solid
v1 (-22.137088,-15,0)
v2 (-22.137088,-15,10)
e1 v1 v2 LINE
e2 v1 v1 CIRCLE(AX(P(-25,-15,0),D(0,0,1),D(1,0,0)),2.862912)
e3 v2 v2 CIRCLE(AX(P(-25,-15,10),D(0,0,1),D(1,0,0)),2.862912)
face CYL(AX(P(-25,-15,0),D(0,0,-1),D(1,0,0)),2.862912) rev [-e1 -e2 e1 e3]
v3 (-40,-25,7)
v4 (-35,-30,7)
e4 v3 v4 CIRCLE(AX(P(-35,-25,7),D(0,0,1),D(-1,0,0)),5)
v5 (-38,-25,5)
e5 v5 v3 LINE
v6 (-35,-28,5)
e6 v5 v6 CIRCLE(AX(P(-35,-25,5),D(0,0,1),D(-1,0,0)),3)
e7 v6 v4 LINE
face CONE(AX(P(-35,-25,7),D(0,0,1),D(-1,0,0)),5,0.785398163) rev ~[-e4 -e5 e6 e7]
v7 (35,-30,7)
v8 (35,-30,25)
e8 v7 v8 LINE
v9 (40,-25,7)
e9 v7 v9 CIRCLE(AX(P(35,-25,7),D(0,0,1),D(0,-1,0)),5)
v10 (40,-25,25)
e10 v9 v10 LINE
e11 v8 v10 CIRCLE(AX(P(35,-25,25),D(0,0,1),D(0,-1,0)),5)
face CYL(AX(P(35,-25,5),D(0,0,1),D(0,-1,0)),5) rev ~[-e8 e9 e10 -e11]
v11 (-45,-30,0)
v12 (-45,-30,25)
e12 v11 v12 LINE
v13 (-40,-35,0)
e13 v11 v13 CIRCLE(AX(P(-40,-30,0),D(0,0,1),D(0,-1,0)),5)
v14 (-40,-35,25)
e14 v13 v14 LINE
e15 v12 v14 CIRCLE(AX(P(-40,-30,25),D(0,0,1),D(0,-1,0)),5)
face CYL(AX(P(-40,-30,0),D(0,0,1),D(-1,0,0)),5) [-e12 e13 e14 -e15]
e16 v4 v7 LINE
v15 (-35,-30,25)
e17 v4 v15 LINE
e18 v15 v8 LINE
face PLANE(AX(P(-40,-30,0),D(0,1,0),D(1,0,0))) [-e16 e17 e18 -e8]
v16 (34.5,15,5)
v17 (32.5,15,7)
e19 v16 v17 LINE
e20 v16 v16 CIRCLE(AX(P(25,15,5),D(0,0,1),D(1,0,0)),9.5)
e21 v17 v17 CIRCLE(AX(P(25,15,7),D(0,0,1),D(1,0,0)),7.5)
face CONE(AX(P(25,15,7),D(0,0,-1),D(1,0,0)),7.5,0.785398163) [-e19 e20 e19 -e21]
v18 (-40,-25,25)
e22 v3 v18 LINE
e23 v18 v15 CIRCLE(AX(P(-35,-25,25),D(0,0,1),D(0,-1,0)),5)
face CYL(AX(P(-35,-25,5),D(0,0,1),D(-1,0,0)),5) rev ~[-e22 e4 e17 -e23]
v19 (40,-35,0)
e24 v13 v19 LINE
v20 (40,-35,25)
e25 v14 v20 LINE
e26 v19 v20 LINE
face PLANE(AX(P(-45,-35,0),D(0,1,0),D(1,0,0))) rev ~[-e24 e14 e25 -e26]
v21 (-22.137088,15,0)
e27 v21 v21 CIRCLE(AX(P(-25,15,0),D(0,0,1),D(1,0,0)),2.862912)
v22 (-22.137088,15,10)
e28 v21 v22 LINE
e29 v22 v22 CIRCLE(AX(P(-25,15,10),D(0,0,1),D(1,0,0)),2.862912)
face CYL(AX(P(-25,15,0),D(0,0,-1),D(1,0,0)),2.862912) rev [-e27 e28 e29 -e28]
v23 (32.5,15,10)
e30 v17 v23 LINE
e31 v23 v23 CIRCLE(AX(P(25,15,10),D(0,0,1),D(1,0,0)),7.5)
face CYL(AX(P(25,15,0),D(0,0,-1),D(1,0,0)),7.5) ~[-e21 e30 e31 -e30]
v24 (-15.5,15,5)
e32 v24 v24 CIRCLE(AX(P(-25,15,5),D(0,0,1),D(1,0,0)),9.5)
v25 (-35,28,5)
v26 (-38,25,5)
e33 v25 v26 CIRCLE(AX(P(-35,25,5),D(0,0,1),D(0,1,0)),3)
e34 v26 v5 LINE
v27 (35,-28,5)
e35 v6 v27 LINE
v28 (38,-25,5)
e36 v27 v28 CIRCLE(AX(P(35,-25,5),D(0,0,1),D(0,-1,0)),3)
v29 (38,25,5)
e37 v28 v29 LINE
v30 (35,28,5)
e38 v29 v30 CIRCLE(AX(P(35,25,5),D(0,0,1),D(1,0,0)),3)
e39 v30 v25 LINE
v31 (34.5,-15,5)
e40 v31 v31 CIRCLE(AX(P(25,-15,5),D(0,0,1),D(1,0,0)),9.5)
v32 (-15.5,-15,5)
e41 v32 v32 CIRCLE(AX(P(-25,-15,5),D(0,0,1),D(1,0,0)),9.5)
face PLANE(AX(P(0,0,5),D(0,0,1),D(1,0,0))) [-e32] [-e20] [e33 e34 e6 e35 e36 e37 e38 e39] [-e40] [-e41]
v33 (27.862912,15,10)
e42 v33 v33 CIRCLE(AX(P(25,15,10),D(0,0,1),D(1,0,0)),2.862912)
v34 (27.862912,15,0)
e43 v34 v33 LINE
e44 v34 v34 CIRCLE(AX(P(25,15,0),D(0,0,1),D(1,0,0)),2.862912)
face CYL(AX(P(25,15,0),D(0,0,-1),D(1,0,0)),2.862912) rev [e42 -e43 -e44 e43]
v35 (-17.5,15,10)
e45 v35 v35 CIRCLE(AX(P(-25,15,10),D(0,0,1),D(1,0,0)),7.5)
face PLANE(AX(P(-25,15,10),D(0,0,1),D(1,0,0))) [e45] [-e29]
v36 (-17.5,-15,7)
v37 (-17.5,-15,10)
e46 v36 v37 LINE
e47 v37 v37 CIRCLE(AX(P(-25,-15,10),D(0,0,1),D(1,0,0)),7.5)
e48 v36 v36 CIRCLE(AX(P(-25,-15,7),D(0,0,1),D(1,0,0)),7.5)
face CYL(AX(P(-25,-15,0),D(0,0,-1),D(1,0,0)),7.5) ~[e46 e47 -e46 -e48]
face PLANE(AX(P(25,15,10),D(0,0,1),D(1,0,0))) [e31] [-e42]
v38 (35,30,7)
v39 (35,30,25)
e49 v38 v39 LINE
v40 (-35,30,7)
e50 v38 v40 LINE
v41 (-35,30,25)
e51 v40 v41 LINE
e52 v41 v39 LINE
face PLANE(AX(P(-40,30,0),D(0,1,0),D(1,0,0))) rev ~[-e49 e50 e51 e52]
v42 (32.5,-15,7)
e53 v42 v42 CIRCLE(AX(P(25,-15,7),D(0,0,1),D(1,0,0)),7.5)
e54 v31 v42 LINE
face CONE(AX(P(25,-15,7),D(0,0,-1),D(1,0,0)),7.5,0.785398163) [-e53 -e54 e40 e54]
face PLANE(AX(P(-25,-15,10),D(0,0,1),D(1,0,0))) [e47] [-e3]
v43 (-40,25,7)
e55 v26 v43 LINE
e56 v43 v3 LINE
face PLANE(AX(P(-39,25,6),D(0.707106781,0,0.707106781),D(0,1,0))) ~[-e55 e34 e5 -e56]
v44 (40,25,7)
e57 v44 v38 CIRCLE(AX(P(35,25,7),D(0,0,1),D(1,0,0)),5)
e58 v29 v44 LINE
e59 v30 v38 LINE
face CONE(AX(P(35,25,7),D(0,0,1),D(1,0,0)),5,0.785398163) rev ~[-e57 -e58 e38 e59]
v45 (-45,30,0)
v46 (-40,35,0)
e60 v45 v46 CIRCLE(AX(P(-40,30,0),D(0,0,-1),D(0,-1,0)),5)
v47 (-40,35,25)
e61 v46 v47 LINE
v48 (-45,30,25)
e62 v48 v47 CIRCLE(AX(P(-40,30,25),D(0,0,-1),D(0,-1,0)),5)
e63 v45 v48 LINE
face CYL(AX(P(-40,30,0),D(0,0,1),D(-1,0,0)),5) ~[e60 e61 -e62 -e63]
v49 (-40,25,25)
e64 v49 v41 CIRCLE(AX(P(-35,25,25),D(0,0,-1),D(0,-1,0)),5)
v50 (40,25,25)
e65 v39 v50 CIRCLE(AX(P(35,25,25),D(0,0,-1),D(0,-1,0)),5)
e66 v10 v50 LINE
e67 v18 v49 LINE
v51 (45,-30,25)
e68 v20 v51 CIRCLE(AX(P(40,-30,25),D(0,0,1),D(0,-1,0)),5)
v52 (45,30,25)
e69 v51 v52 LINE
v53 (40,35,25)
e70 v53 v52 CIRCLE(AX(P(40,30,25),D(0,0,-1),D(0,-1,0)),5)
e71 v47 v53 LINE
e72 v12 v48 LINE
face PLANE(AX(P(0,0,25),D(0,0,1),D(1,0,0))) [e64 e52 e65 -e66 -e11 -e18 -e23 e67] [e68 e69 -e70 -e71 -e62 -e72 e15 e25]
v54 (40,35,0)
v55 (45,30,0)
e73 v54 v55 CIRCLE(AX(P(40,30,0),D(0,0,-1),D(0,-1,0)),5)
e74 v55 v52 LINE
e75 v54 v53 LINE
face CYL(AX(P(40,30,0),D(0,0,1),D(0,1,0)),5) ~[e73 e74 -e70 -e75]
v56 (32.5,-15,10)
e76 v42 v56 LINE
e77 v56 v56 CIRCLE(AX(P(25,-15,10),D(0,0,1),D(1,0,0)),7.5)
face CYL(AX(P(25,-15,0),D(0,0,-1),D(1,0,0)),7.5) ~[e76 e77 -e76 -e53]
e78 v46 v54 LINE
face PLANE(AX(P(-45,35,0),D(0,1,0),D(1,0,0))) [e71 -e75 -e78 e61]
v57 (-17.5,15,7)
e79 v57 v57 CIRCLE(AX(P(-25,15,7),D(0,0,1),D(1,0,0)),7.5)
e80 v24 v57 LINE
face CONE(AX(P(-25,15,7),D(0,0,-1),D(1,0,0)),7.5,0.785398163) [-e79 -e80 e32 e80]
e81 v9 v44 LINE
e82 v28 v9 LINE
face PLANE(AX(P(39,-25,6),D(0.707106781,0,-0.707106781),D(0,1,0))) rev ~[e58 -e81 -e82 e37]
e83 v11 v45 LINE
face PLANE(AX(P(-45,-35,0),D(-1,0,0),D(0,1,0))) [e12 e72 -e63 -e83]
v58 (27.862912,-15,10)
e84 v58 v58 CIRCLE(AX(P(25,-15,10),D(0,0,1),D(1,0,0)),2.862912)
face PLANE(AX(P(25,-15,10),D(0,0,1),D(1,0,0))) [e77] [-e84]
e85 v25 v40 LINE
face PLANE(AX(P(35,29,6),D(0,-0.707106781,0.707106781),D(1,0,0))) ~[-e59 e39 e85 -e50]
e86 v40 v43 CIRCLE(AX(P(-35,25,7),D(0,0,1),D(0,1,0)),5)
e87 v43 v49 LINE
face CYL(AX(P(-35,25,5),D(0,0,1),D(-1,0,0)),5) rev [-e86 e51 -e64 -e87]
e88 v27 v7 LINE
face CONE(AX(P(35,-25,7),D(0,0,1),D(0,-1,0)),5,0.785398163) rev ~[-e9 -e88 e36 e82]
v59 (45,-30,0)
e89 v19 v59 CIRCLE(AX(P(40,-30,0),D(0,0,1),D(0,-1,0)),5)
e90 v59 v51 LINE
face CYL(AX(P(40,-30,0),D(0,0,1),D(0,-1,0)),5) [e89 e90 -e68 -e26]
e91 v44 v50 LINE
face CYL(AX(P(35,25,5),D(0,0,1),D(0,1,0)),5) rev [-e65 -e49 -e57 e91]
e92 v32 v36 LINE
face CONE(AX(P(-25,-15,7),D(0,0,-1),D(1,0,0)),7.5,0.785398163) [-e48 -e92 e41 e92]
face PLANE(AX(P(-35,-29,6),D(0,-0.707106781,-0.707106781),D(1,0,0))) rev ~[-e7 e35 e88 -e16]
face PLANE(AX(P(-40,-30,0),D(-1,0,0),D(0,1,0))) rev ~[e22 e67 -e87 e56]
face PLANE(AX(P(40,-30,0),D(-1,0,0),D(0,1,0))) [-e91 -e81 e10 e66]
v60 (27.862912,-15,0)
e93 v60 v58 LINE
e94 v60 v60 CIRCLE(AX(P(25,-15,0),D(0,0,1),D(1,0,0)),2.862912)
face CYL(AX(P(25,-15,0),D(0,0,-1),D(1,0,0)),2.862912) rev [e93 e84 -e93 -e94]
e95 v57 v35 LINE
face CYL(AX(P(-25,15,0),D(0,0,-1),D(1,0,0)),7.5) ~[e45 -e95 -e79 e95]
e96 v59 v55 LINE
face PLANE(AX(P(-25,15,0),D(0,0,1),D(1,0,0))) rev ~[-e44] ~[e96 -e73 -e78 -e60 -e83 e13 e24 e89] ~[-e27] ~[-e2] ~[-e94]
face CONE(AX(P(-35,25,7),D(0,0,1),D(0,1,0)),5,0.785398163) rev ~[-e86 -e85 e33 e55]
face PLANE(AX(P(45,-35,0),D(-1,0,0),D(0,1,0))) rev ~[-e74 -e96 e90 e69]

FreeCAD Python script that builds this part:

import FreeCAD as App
import Part
import Sketcher

V = App.Vector
Q = App.Units.Quantity


def edges_at(feature, points):
    """Names of the edges that pass closest to the given points."""
    edges = feature.Shape.Edges
    near = lambda p: min(range(len(edges)), key=lambda i: edges[i].distToShape(Part.Vertex(*p))[0])
    return sorted({f"Edge{near(p) + 1}" for p in points})

doc = App.newDocument("Part")
params = doc.addObject("Spreadsheet::Sheet", "Params")
for row, (alias, value) in enumerate([
    ("sketch1_width", "90 mm"),
    ("sketch1_width2", "80 mm"),
    ("sketch1_height", "70 mm"),
    ("sketch1_height2", "60 mm"),
    ("pad1_length", "25 mm"),
    ("sketch2_diameter", "15 mm"),
    ("sketch2_width", "80 mm"),
    ("sketch2_height", "60 mm"),
    ("pad2_length", "5 mm"),
    ("sketch3_diameter", "15 mm"),
    ("pad3_length", "10 mm"),
    ("fillet_radius", "5 mm"),
    ("chamfer_size", "2 mm"),
], start=1):
    params.set(f"A{row}", alias)
    params.set(f"B{row}", "=" + value)
    params.setAlias(f"B{row}", alias)

body = doc.addObject("PartDesign::Body", "Body")

# Sketch on XY plane
sketch1 = doc.addObject("Sketcher::SketchObject", "Sketch")
body.addObject(sketch1)
sketch1.AttachmentSupport = (doc.XY_Plane, [""])
sketch1.MapMode = "FlatFace"
sketch1.addGeometry(Part.LineSegment(V(-45, 35, 0), V(-45, -35, 0)), False)
sketch1.addGeometry(Part.LineSegment(V(-45, -35, 0), V(45, -35, 0)), False)
sketch1.addGeometry(Part.LineSegment(V(45, -35, 0), V(45, 35, 0)), False)
sketch1.addGeometry(Part.LineSegment(V(45, 35, 0), V(-45, 35, 0)), False)
sketch1.addGeometry(Part.LineSegment(V(40, -30, 0), V(-40, -30, 0)), False)
sketch1.addGeometry(Part.LineSegment(V(-40, -30, 0), V(-40, 30, 0)), False)
sketch1.addGeometry(Part.LineSegment(V(-40, 30, 0), V(40, 30, 0)), False)
sketch1.addGeometry(Part.LineSegment(V(40, 30, 0), V(40, -30, 0)), False)
sketch1.addConstraint(Sketcher.Constraint("Coincident", 0, 2, 1, 1))
sketch1.addConstraint(Sketcher.Constraint("Coincident", 1, 2, 2, 1))
sketch1.addConstraint(Sketcher.Constraint("Coincident", 2, 2, 3, 1))
sketch1.addConstraint(Sketcher.Constraint("Coincident", 3, 2, 0, 1))
sketch1.addConstraint(Sketcher.Constraint("Coincident", 4, 2, 5, 1))
sketch1.addConstraint(Sketcher.Constraint("Coincident", 5, 2, 6, 1))
sketch1.addConstraint(Sketcher.Constraint("Coincident", 6, 2, 7, 1))
sketch1.addConstraint(Sketcher.Constraint("Coincident", 7, 2, 4, 1))
sketch1.addConstraint(Sketcher.Constraint("Vertical", 0))
sketch1.addConstraint(Sketcher.Constraint("Horizontal", 1))
sketch1.addConstraint(Sketcher.Constraint("Vertical", 2))
sketch1.addConstraint(Sketcher.Constraint("Horizontal", 3))
sketch1.addConstraint(Sketcher.Constraint("Horizontal", 4))
sketch1.addConstraint(Sketcher.Constraint("Vertical", 5))
sketch1.addConstraint(Sketcher.Constraint("Horizontal", 6))
sketch1.addConstraint(Sketcher.Constraint("Vertical", 7))
sketch1.addConstraint(Sketcher.Constraint("Symmetric", 0, 2, 2, 2, -1, 1))
sketch1.addConstraint(Sketcher.Constraint("Symmetric", 4, 2, 6, 2, -1, 1))
sketch1.addConstraint(Sketcher.Constraint("DistanceX", 1, 1, 1, 2, Q("90 mm")))
sketch1.addConstraint(Sketcher.Constraint("DistanceX", 4, 2, 4, 1, Q("80 mm")))
sketch1.addConstraint(Sketcher.Constraint("DistanceY", 0, 2, 0, 1, Q("70 mm")))
sketch1.addConstraint(Sketcher.Constraint("DistanceY", 5, 1, 5, 2, Q("60 mm")))
sketch1.setExpression("Constraints[18]", "Params.sketch1_width")
sketch1.setExpression("Constraints[19]", "Params.sketch1_width2")
sketch1.setExpression("Constraints[20]", "Params.sketch1_height")
sketch1.setExpression("Constraints[21]", "Params.sketch1_height2")
pad1 = doc.addObject("PartDesign::Pad", "Pad")
body.addObject(pad1)
pad1.Profile = sketch1
pad1.setExpression("Length", "Params.pad1_length")

# Sketch on XY plane
sketch2 = doc.addObject("Sketcher::SketchObject", "Sketch001")
body.addObject(sketch2)
sketch2.AttachmentSupport = (doc.XY_Plane, [""])
sketch2.MapMode = "FlatFace"
sketch2.addGeometry(Part.LineSegment(V(-40, 30, 0), V(-40, -30, 0)), False)
sketch2.addGeometry(Part.LineSegment(V(-40, -30, 0), V(40, -30, 0)), False)
sketch2.addGeometry(Part.LineSegment(V(40, -30, 0), V(40, 30, 0)), False)
sketch2.addGeometry(Part.LineSegment(V(40, 30, 0), V(-40, 30, 0)), False)
sketch2.addGeometry(Part.Circle(V(-25, -15, 0), V(0, 0, 1), 8), False)
sketch2.addGeometry(Part.Circle(V(25, -15, 0), V(0, 0, 1), 8), False)
sketch2.addGeometry(Part.Circle(V(-25, 15, 0), V(0, 0, 1), 8), False)
sketch2.addGeometry(Part.Circle(V(25, 15, 0), V(0, 0, 1), 8), False)
sketch2.addConstraint(Sketcher.Constraint("Coincident", 0, 2, 1, 1))
sketch2.addConstraint(Sketcher.Constraint("Coincident", 1, 2, 2, 1))
sketch2.addConstraint(Sketcher.Constraint("Coincident", 2, 2, 3, 1))
sketch2.addConstraint(Sketcher.Constraint("Coincident", 3, 2, 0, 1))
sketch2.addConstraint(Sketcher.Constraint("Vertical", 0))
sketch2.addConstraint(Sketcher.Constraint("Horizontal", 1))
sketch2.addConstraint(Sketcher.Constraint("Vertical", 2))
sketch2.addConstraint(Sketcher.Constraint("Horizontal", 3))
sketch2.addConstraint(Sketcher.Constraint("Equal", 4, 5))
sketch2.addConstraint(Sketcher.Constraint("Equal", 5, 6))
sketch2.addConstraint(Sketcher.Constraint("Equal", 6, 7))
sketch2.addConstraint(Sketcher.Constraint("Symmetric", 5, 3, 6, 3, -1, 1))
sketch2.addConstraint(Sketcher.Constraint("Symmetric", 4, 3, 7, 3, -1, 1))
sketch2.addConstraint(Sketcher.Constraint("Symmetric", 0, 2, 2, 2, -1, 1))
sketch2.addConstraint(Sketcher.Constraint("Symmetric", 4, 3, 5, 3, -2))
sketch2.addConstraint(Sketcher.Constraint("Diameter", 4, Q("15 mm")))
sketch2.addConstraint(Sketcher.Constraint("DistanceX", 1, 1, 1, 2, Q("80 mm")))
sketch2.addConstraint(Sketcher.Constraint("DistanceY", 0, 2, 0, 1, Q("60 mm")))
sketch2.addConstraint(Sketcher.Constraint("DistanceX", 4, 3, -1, 1, Q("25 mm")))
sketch2.addConstraint(Sketcher.Constraint("DistanceY", 4, 3, -1, 1, Q("15 mm")))
sketch2.setExpression("Constraints[15]", "Params.sketch2_diameter")
sketch2.setExpression("Constraints[16]", "Params.sketch2_width")
sketch2.setExpression("Constraints[17]", "Params.sketch2_height")
pad2 = doc.addObject("PartDesign::Pad", "Pad001")
body.addObject(pad2)
pad2.Profile = sketch2
pad2.setExpression("Length", "Params.pad2_length")

# Sketch on XY plane
sketch3 = doc.addObject("Sketcher::SketchObject", "Sketch002")
body.addObject(sketch3)
sketch3.AttachmentSupport = (doc.XY_Plane, [""])
sketch3.MapMode = "FlatFace"
sketch3.addGeometry(Part.Circle(V(-25, 15, 0), V(0, 0, 1), 7.5), False)
sketch3.addGeometry(Part.Circle(V(-25, 15, 0), V(0, 0, 1), 2.9), False)
sketch3.addGeometry(Part.Circle(V(-25, -15, 0), V(0, 0, 1), 7.5), False)
sketch3.addGeometry(Part.Circle(V(-25, -15, 0), V(0, 0, 1), 2.9), False)
sketch3.addGeometry(Part.Circle(V(25, 15, 0), V(0, 0, 1), 7.5), False)
sketch3.addGeometry(Part.Circle(V(25, 15, 0), V(0, 0, 1), 2.9), False)
sketch3.addGeometry(Part.Circle(V(25, -15, 0), V(0, 0, 1), 7.5), False)
sketch3.addGeometry(Part.Circle(V(25, -15, 0), V(0, 0, 1), 2.9), False)
sketch3.addConstraint(Sketcher.Constraint("Coincident", 1, 3, 0, 3))
sketch3.addConstraint(Sketcher.Constraint("Coincident", 3, 3, 2, 3))
sketch3.addConstraint(Sketcher.Constraint("Coincident", 5, 3, 4, 3))
sketch3.addConstraint(Sketcher.Constraint("Coincident", 7, 3, 6, 3))
sketch3.addConstraint(Sketcher.Constraint("Equal", 0, 2))
sketch3.addConstraint(Sketcher.Constraint("Equal", 1, 3))
sketch3.addConstraint(Sketcher.Constraint("Equal", 2, 4))
sketch3.addConstraint(Sketcher.Constraint("Equal", 3, 5))
sketch3.addConstraint(Sketcher.Constraint("Equal", 4, 6))
sketch3.addConstraint(Sketcher.Constraint("Equal", 5, 7))
sketch3.addConstraint(Sketcher.Constraint("Symmetric", 2, 3, 4, 3, -1, 1))
sketch3.addConstraint(Sketcher.Constraint("Symmetric", 0, 3, 6, 3, -1, 1))
sketch3.addConstraint(Sketcher.Constraint("Symmetric", 0, 3, 4, 3, -2))
sketch3.addConstraint(Sketcher.Constraint("Diameter", 0, Q("15 mm")))
sketch3.addConstraint(Sketcher.Constraint("DistanceX", 0, 3, -1, 1, Q("25 mm")))
sketch3.addConstraint(Sketcher.Constraint("DistanceY", -1, 1, 0, 3, Q("15 mm")))
sketch3.addConstraint(Sketcher.Constraint("Diameter", 1, Q("5.725824 mm")))
sketch3.setExpression("Constraints[13]", "Params.sketch3_diameter")
pad3 = doc.addObject("PartDesign::Pad", "Pad002")
body.addObject(pad3)
pad3.Profile = sketch3
pad3.setExpression("Length", "Params.pad3_length")
doc.recompute()

fillet = doc.addObject("PartDesign::Fillet", "Fillet")
body.addObject(fillet)
fillet.Base = (pad3, edges_at(pad3, [
    (-40, 30, 15),
    (45, 35, 12.5),
    (45, -35, 12.5),
    (-45, -35, 12.5),
    (-45, 35, 12.5),
    (40, -30, 15),
    (-40, -30, 15),
    (40, 30, 15),
]))
fillet.setExpression("Radius", "Params.fillet_radius")
doc.recompute()

chamfer = doc.addObject("PartDesign::Chamfer", "Chamfer")
body.addObject(chamfer)
chamfer.Base = (fillet, edges_at(fillet, [
    (-32.5, 15, 5),
    (17.5, 15, 5),
    (-32.5, -15, 5),
    (0, -30, 5),
    (-38.536, -28.536, 5),
    (38.536, -28.536, 5),
    (-40, 0, 5),
    (40, 0, 5),
    (-38.536, 28.536, 5),
    (38.536, 28.536, 5),
    (0, 30, 5),
    (17.5, -15, 5),
]))
chamfer.setExpression("Size", "Params.chamfer_size")

doc.recompute()
